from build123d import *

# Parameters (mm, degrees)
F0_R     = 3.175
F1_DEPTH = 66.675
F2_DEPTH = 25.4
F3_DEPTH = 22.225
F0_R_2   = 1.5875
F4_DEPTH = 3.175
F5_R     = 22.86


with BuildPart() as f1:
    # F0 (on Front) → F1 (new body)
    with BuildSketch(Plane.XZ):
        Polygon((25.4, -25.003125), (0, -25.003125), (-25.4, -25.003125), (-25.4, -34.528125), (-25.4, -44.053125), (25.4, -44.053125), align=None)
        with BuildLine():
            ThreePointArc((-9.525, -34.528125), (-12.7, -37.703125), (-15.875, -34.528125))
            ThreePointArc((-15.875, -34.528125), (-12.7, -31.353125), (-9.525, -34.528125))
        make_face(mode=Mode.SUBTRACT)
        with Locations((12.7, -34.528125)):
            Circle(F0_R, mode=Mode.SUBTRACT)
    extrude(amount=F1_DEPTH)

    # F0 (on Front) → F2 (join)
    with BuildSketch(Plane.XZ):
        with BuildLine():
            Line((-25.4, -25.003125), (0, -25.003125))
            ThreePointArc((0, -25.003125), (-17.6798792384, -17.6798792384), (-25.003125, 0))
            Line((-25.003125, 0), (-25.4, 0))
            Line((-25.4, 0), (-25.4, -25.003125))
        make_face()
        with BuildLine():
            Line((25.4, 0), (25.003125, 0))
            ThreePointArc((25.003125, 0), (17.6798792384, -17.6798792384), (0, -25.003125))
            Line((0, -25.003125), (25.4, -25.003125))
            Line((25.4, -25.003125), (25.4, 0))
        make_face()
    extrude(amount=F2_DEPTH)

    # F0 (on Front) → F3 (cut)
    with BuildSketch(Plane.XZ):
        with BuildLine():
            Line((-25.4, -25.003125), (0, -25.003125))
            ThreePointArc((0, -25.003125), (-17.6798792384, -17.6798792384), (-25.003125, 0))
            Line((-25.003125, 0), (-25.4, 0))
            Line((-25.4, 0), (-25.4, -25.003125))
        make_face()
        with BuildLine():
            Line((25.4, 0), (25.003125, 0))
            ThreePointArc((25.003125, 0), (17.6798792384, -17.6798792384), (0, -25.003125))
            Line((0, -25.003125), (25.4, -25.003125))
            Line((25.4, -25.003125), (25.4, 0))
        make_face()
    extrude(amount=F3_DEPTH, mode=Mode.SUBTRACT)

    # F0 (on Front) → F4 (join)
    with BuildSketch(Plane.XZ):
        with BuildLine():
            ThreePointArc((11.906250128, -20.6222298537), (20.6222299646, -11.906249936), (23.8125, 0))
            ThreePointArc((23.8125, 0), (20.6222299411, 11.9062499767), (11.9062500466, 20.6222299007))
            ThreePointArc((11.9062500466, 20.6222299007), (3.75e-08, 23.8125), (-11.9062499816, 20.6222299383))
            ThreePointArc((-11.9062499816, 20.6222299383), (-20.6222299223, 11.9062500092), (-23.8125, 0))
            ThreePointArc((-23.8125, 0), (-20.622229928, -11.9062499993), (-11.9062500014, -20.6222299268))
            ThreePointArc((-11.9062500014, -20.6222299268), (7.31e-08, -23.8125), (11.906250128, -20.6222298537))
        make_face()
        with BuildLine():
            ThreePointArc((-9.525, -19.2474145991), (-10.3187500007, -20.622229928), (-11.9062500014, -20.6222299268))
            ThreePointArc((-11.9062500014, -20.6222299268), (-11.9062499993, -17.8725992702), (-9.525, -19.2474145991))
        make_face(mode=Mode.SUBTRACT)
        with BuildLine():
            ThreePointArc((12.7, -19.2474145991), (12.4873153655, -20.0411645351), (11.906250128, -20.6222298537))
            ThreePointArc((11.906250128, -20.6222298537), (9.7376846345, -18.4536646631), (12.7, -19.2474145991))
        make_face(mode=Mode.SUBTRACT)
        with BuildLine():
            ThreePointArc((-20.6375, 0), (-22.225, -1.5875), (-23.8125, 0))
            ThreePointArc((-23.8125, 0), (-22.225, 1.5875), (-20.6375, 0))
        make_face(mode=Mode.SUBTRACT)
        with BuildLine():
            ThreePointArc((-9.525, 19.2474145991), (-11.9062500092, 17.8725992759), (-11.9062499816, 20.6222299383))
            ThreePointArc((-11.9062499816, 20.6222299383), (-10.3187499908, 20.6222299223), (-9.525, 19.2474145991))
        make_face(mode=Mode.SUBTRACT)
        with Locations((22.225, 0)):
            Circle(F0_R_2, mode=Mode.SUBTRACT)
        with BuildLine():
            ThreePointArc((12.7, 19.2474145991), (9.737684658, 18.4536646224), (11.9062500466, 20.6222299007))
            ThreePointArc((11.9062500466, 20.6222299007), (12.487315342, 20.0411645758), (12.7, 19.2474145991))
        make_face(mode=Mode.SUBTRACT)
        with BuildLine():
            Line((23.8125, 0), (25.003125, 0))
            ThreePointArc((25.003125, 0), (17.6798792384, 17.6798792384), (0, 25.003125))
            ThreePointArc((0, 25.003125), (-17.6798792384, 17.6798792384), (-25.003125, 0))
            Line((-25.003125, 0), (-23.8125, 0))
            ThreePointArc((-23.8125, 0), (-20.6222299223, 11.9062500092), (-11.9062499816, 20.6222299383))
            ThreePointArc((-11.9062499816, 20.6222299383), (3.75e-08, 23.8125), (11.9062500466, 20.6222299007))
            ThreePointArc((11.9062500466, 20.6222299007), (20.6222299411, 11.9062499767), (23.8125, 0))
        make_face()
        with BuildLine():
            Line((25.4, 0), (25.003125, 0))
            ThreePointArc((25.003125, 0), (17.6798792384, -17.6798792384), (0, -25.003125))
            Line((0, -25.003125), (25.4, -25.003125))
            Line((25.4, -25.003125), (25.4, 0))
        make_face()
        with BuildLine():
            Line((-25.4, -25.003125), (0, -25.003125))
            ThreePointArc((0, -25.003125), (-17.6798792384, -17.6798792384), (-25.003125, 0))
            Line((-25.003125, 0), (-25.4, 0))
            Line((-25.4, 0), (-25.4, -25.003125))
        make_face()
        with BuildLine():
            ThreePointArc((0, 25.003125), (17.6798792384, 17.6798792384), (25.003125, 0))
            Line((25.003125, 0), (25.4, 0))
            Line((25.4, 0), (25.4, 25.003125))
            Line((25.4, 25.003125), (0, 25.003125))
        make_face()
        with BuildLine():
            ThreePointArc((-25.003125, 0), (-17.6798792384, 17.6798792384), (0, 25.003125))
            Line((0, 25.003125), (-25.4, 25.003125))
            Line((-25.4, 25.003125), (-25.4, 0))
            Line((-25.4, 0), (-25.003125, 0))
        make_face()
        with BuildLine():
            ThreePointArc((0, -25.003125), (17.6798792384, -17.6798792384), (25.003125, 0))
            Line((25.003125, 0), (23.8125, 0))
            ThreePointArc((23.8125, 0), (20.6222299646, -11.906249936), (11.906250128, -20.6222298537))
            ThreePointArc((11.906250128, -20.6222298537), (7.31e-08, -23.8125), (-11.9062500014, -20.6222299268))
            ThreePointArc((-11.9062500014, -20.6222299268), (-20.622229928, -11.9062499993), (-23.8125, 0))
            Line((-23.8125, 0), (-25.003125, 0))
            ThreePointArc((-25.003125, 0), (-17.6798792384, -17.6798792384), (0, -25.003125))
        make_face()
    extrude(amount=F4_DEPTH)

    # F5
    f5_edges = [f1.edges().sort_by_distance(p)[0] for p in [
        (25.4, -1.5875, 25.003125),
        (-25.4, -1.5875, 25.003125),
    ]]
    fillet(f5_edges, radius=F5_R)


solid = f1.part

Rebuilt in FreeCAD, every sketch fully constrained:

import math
import FreeCAD as App
import Part
import Sketcher
Q = App.Units.Quantity


def edges_at(feature, points):
    """Names of the edges that pass closest to the given points."""
    edges = feature.Shape.Edges
    near = lambda p: min(range(len(edges)), key=lambda i: edges[i].distToShape(Part.Vertex(*p))[0])
    return sorted({f"Edge{near(p) + 1}" for p in points})


def add_polygon(sketch, points):
    """Adds a closed chain of lines whose ends are joined by coincident constraints."""
    first, n = sketch.GeometryCount, len(points)
    for a, b in zip(points, points[1:] + points[:1]):
        sketch.addGeometry(Part.LineSegment(App.Vector(*a, 0), App.Vector(*b, 0)), False)
    for i in range(n):
        sketch.addConstraint(Sketcher.Constraint("Coincident", first + i, 2, first + (i + 1) % n, 1))

doc = App.newDocument("Part")
body = doc.addObject("PartDesign::Body", "Body")

# Sketch on XZ plane
sketch1 = body.newObject("Sketcher::SketchObject", "Sketch")
sketch1.AttachmentSupport = (doc.getObject("XZ_Plane"), [""])
sketch1.MapMode = "FlatFace"
add_polygon(sketch1, [(25.4, -25), (-25.4, -25), (-25.4, -44.1), (25.4, -44.1)])  # lines 0-3
sketch1.addGeometry(Part.Circle(App.Vector(12.7, -34.5, 0), App.Vector(0, 0, 1), 3.2), False)  # 4
sketch1.addGeometry(Part.Circle(App.Vector(-12.7, -34.5, 0), App.Vector(0, 0, 1), 3.2), False)  # 5
sketch1.addConstraint([
    Sketcher.Constraint("Horizontal", 0),
    Sketcher.Constraint("Vertical", 1),
    Sketcher.Constraint("Horizontal", 2),
    Sketcher.Constraint("Vertical", 3),
    Sketcher.Constraint("Equal", 4, 5),
    Sketcher.Constraint("Symmetric", 4, 3, 5, 3, -2),
    Sketcher.Constraint("Diameter", 4, Q("0.25 in")),
    Sketcher.Constraint("DistanceX", 0, 2, 0, 1, Q("2 in")),
    Sketcher.Constraint("DistanceX", 0, 2, -1, 1, Q("1 in")),
    Sketcher.Constraint("DistanceX", 5, 3, 4, 3, Q("1 in")),
    Sketcher.Constraint("DistanceY", 1, 2, 1, 1, Q("0.75 in")),
    Sketcher.Constraint("DistanceY", 4, 3, -1, 1, Q("1.359375 in")),
    Sketcher.Constraint("DistanceY", 0, 2, -1, 1, Q("0.984375 in")),
])
pad1 = body.newObject("PartDesign::Pad", "Pad")
pad1.Profile = sketch1
pad1.Length = Q("2.625 in")

# Sketch on XZ plane
sketch2 = body.newObject("Sketcher::SketchObject", "Sketch001")
sketch2.AttachmentSupport = (doc.getObject("XZ_Plane"), [""])
sketch2.MapMode = "FlatFace"
sketch2.addGeometry([
    Part.LineSegment(App.Vector(-25.4, -25, 0), App.Vector(0, -25, 0)),  # 0
    Part.ArcOfCircle(Part.Circle(App.Vector(0, 0, 0), App.Vector(0, 0, 1), 25), math.radians(180), math.radians(270)),  # 1
    Part.LineSegment(App.Vector(-25, 0, 0), App.Vector(-25.4, 0, 0)),  # 2
    Part.LineSegment(App.Vector(-25.4, 0, 0), App.Vector(-25.4, -25, 0)),  # 3
    Part.LineSegment(App.Vector(25.4, 0, 0), App.Vector(25, 0, 0)),  # 4
    Part.ArcOfCircle(Part.Circle(App.Vector(0, 0, 0), App.Vector(0, 0, 1), 25), math.radians(-90), math.radians(0)),  # 5
    Part.LineSegment(App.Vector(0, -25, 0), App.Vector(25.4, -25, 0)),  # 6
    Part.LineSegment(App.Vector(25.4, -25, 0), App.Vector(25.4, 0, 0)),  # 7
], False)
sketch2.addConstraint([
    Sketcher.Constraint("Tangent", 0, 2, 1, 2),
    Sketcher.Constraint("Coincident", 1, 1, 2, 1),
    Sketcher.Constraint("Coincident", 2, 2, 3, 1),
    Sketcher.Constraint("Coincident", 3, 2, 0, 1),
    Sketcher.Constraint("Coincident", 4, 2, 5, 2),
    Sketcher.Constraint("Tangent", 5, 1, 6, 1),
    Sketcher.Constraint("Coincident", 6, 2, 7, 1),
    Sketcher.Constraint("Coincident", 7, 2, 4, 1),
    Sketcher.Constraint("Horizontal", 0),
    Sketcher.Constraint("Horizontal", 2),
    Sketcher.Constraint("Vertical", 3),
    Sketcher.Constraint("Horizontal", 4),
    Sketcher.Constraint("Horizontal", 6),
    Sketcher.Constraint("Vertical", 7),
    Sketcher.Constraint("Coincident", 1, 3, -1, 1),
    Sketcher.Constraint("Coincident", 5, 3, -1, 1),
    Sketcher.Constraint("Equal", 1, 5),
    Sketcher.Constraint("Symmetric", 2, 2, 7, 2, -1, 1),
    Sketcher.Constraint("PointOnObject", 1, 1, -1),
    Sketcher.Constraint("DistanceX", 0, 1, 0, 2, Q("1 in")),
    Sketcher.Constraint("Radius", 1, Q("0.984375 in")),
])
pad2 = body.newObject("PartDesign::Pad", "Pad001")
pad2.Profile = sketch2
pad2.Length = Q("1 in")

# Sketch on XZ plane
sketch3 = body.newObject("Sketcher::SketchObject", "Sketch002")
sketch3.AttachmentSupport = (doc.getObject("XZ_Plane"), [""])
sketch3.MapMode = "FlatFace"
sketch3.addGeometry([
    Part.LineSegment(App.Vector(-25.4, -25, 0), App.Vector(0, -25, 0)),  # 0
    Part.ArcOfCircle(Part.Circle(App.Vector(0, 0, 0), App.Vector(0, 0, 1), 25), math.radians(180), math.radians(270)),  # 1
    Part.LineSegment(App.Vector(-25, 0, 0), App.Vector(-25.4, 0, 0)),  # 2
    Part.LineSegment(App.Vector(-25.4, 0, 0), App.Vector(-25.4, -25, 0)),  # 3
    Part.LineSegment(App.Vector(25.4, 0, 0), App.Vector(25, 0, 0)),  # 4
    Part.ArcOfCircle(Part.Circle(App.Vector(0, 0, 0), App.Vector(0, 0, 1), 25), math.radians(-90), math.radians(0)),  # 5
    Part.LineSegment(App.Vector(0, -25, 0), App.Vector(25.4, -25, 0)),  # 6
    Part.LineSegment(App.Vector(25.4, -25, 0), App.Vector(25.4, 0, 0)),  # 7
], False)
sketch3.addConstraint([
    Sketcher.Constraint("Tangent", 0, 2, 1, 2),
    Sketcher.Constraint("Coincident", 1, 1, 2, 1),
    Sketcher.Constraint("Coincident", 2, 2, 3, 1),
    Sketcher.Constraint("Coincident", 3, 2, 0, 1),
    Sketcher.Constraint("Coincident", 4, 2, 5, 2),
    Sketcher.Constraint("Tangent", 5, 1, 6, 1),
    Sketcher.Constraint("Coincident", 6, 2, 7, 1),
    Sketcher.Constraint("Coincident", 7, 2, 4, 1),
    Sketcher.Constraint("Horizontal", 0),
    Sketcher.Constraint("Horizontal", 2),
    Sketcher.Constraint("Vertical", 3),
    Sketcher.Constraint("Horizontal", 4),
    Sketcher.Constraint("Horizontal", 6),
    Sketcher.Constraint("Vertical", 7),
    Sketcher.Constraint("Coincident", 1, 3, -1, 1),
    Sketcher.Constraint("Coincident", 5, 3, -1, 1),
    Sketcher.Constraint("Equal", 1, 5),
    Sketcher.Constraint("Symmetric", 2, 2, 7, 2, -1, 1),
    Sketcher.Constraint("PointOnObject", 1, 1, -1),
    Sketcher.Constraint("DistanceX", 0, 1, 0, 2, Q("1 in")),
    Sketcher.Constraint("Radius", 1, Q("0.984375 in")),
])
pocket1 = body.newObject("PartDesign::Pocket", "Pocket")
pocket1.Profile = sketch3
pocket1.Length = Q("0.875 in")
pocket1.Reversed = True

# Sketch on XZ plane
sketch4 = body.newObject("Sketcher::SketchObject", "Sketch003")
sketch4.AttachmentSupport = (doc.getObject("XZ_Plane"), [""])
sketch4.MapMode = "FlatFace"
add_polygon(sketch4, [(-25.4, -25), (25.4, -25), (25.4, 25), (-25.4, 25)])  # lines 0-3
sketch4.addGeometry(Part.ArcOfCircle(Part.Circle(App.Vector(-11.1, -19.2, 0), App.Vector(0, 0, 1), 1.6), math.radians(-120), math.radians(0)), False)  # 4
sketch4.addGeometry(Part.ArcOfCircle(Part.Circle(App.Vector(-11.1, -19.2, 0), App.Vector(0, 0, 1), 1.6), math.radians(0), math.radians(240)), False)  # 5
sketch4.addGeometry(Part.ArcOfCircle(Part.Circle(App.Vector(11.1, -19.2, 0), App.Vector(0, 0, 1), 1.6), math.radians(-60), math.radians(0)), False)  # 6
sketch4.addGeometry(Part.ArcOfCircle(Part.Circle(App.Vector(11.1, -19.2, 0), App.Vector(0, 0, 1), 1.6), math.radians(0), math.radians(300)), False)  # 7
sketch4.addGeometry(Part.Circle(App.Vector(-22.2, 0, 0), App.Vector(0, 0, 1), 1.6), False)  # 8
sketch4.addGeometry(Part.ArcOfCircle(Part.Circle(App.Vector(-11.1, 19.2, 0), App.Vector(0, 0, 1), 1.6), math.radians(120), math.radians(360)), False)  # 9
sketch4.addGeometry(Part.ArcOfCircle(Part.Circle(App.Vector(-11.1, 19.2, 0), App.Vector(0, 0, 1), 1.6), math.radians(0), math.radians(120)), False)  # 10
sketch4.addGeometry(Part.Circle(App.Vector(22.2, 0, 0), App.Vector(0, 0, 1), 1.6), False)  # 11
sketch4.addGeometry(Part.ArcOfCircle(Part.Circle(App.Vector(11.1, 19.2, 0), App.Vector(0, 0, 1), 1.6), math.radians(60), math.radians(360)), False)  # 12
sketch4.addGeometry(Part.ArcOfCircle(Part.Circle(App.Vector(11.1, 19.2, 0), App.Vector(0, 0, 1), 1.6), math.radians(0), math.radians(60)), False)  # 13
sketch4.addConstraint([
    Sketcher.Constraint("Tangent", 4, 1, 5, 2),
    Sketcher.Constraint("Coincident", 5, 1, 4, 2),
    Sketcher.Constraint("Tangent", 6, 1, 7, 2),
    Sketcher.Constraint("Coincident", 7, 1, 6, 2),
    Sketcher.Constraint("Tangent", 9, 1, 10, 2),
    Sketcher.Constraint("Coincident", 10, 1, 9, 2),
    Sketcher.Constraint("Tangent", 12, 1, 13, 2),
    Sketcher.Constraint("Coincident", 13, 1, 12, 2),
    Sketcher.Constraint("Horizontal", 0),
    Sketcher.Constraint("Vertical", 1),
    Sketcher.Constraint("Horizontal", 2),
    Sketcher.Constraint("Vertical", 3),
    Sketcher.Constraint("Equal", 5, 6),
    Sketcher.Constraint("Equal", 7, 8),
    Sketcher.Constraint("Equal", 8, 9),
    Sketcher.Constraint("Equal", 10, 11),
    Sketcher.Constraint("Equal", 11, 12),
    Sketcher.Constraint("Symmetric", 6, 3, 9, 3, -1, 1),
    Sketcher.Constraint("Symmetric", 8, 3, 11, 3, -1, 1),
    Sketcher.Constraint("Symmetric", 4, 3, 12, 3, -1, 1),
    Sketcher.Constraint("Symmetric", 0, 2, 2, 2, -1, 1),
    Sketcher.Constraint("Symmetric", 4, 3, 6, 3, -2),
    Sketcher.Constraint("PointOnObject", 8, 3, -1),
    Sketcher.Constraint("Horizontal", 7, 3, 5, 1),
    Sketcher.Constraint("Horizontal", 4, 1, 6, 1),
    Sketcher.Constraint("Horizontal", 5, 1, 7, 1),
    Sketcher.Constraint("Horizontal", 13, 3, 10, 1),
    Sketcher.Constraint("Horizontal", 9, 1, 12, 1),
    Sketcher.Constraint("Horizontal", 10, 1, 13, 1),
    Sketcher.Constraint("Vertical", 4, 1, 9, 1),
    Sketcher.Constraint("DistanceX", 0, 1, 0, 2, Q("2 in")),
    Sketcher.Constraint("Diameter", 8, Q("0.125 in")),
    Sketcher.Constraint("DistanceX", -1, 1, 7, 1, Q("0.5 in")),
    Sketcher.Constraint("DistanceY", 1, 1, 1, 2, Q("1.96875 in")),
    Sketcher.Constraint("DistanceX", 8, 3, -1, 1, Q("0.875 in")),
    Sketcher.Constraint("DistanceX", 4, 1, -1, 1, Q("0.46875 in")),
    Sketcher.Constraint("DistanceY", 4, 1, -1, 1, Q("20.62223 mm")),
])
pad3 = body.newObject("PartDesign::Pad", "Pad002")
pad3.Profile = sketch4
pad3.Length = Q("0.125 in")
doc.recompute()

fillet = body.newObject("PartDesign::Fillet", "Fillet")
fillet.Base = (pad3, edges_at(pad3, [(25.4, -1.587, 25.003), (-25.4, -1.587, 25.003)]))
fillet.Radius = Q("0.9 in")

doc.recompute()
